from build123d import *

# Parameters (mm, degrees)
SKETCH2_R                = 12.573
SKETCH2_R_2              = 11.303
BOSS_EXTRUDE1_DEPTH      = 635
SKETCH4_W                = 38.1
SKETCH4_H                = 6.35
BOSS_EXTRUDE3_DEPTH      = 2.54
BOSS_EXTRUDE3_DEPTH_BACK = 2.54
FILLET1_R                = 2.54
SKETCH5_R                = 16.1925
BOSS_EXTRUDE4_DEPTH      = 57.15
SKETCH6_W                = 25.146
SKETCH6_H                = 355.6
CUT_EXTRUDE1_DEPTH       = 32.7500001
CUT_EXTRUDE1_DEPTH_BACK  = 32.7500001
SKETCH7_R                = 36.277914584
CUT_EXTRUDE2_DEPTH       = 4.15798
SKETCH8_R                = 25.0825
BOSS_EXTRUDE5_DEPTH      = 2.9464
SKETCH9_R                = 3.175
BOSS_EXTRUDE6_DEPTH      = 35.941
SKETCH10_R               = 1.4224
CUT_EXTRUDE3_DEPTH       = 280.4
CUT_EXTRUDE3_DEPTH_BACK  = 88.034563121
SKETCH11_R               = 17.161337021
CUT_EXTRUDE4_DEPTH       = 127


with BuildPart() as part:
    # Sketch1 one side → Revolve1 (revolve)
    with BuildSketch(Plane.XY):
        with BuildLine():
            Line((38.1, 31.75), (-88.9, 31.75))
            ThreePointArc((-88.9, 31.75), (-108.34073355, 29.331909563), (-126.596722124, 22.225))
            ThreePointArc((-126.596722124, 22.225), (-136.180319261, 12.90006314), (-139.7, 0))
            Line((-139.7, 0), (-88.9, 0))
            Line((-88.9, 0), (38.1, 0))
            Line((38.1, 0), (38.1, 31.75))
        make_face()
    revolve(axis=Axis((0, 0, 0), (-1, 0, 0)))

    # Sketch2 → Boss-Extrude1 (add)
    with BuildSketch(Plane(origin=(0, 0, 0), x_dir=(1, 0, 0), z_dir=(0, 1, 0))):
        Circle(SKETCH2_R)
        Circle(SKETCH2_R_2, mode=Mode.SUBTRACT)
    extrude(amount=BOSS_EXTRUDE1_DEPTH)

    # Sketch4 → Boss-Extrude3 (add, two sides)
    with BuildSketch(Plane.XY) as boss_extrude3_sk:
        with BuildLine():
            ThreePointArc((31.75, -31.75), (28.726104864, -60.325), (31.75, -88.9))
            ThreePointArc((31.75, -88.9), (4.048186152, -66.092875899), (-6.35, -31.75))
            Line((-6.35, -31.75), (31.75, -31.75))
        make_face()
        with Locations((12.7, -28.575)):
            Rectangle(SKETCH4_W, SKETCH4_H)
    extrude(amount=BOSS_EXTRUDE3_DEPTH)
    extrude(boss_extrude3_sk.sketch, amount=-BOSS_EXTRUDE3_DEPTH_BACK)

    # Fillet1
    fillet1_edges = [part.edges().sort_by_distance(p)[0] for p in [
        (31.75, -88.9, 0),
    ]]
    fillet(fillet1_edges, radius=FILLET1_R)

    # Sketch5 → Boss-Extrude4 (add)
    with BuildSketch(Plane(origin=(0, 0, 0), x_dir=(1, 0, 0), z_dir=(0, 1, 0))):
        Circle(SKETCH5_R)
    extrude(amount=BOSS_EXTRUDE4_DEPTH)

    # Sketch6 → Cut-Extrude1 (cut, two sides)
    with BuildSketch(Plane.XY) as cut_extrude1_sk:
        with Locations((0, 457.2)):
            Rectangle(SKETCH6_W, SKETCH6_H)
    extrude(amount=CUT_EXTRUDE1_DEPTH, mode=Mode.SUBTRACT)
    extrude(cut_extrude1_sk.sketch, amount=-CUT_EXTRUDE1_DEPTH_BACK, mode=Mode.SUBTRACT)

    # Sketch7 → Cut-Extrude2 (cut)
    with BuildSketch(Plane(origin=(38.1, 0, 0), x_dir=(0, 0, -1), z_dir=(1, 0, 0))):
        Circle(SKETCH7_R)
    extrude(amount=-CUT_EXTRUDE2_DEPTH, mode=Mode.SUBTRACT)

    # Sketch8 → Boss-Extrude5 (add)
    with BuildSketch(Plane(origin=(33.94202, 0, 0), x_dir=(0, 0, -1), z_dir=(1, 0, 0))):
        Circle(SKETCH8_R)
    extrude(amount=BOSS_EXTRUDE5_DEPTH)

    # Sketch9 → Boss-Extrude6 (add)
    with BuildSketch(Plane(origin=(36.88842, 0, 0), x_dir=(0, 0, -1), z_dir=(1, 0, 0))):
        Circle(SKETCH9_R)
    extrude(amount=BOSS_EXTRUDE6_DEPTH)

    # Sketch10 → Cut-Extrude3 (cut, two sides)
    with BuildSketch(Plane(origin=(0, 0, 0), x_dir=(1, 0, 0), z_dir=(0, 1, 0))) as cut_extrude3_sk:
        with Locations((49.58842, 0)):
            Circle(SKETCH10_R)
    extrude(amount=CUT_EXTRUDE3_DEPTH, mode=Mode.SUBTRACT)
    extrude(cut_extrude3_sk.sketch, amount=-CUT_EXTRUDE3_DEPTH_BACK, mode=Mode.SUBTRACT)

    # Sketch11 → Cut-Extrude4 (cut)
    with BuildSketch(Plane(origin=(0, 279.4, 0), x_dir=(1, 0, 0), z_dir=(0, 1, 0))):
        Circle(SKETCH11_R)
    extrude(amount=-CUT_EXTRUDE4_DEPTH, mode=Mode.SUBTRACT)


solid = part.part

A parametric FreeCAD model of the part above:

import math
import FreeCAD as App
import Part
import Sketcher
Q = App.Units.Quantity


def edges_at(feature, points):
    """Names of the edges that pass closest to the given points."""
    edges = feature.Shape.Edges
    near = lambda p: min(range(len(edges)), key=lambda i: edges[i].distToShape(Part.Vertex(*p))[0])
    return sorted({f"Edge{near(p) + 1}" for p in points})

doc = App.newDocument("Part")
body = doc.addObject("PartDesign::Body", "Body")

# Sketch on XY plane
sketch1 = doc.addObject("Sketcher::SketchObject", "Sketch")
body.addObject(sketch1)
sketch1.AttachmentSupport = (doc.XY_Plane, [""])
sketch1.MapMode = "FlatFace"
sketch1.addGeometry([
    Part.LineSegment(App.Vector(38, 32, 0), App.Vector(-89, 32, 0)),  # 0
    Part.ArcOfCircle(Part.Circle(App.Vector(-89, -48, 0), App.Vector(0, 0, 1), 79), math.radians(90), math.radians(118)),  # 1
    Part.ArcOfCircle(Part.Circle(App.Vector(-114, 0, 0), App.Vector(0, 0, 1), 25), math.radians(119), math.radians(180)),  # 2
    Part.LineSegment(App.Vector(-140, 0, 0), App.Vector(38, 0, 0)),  # 3
    Part.LineSegment(App.Vector(38, 0, 0), App.Vector(38, 32, 0)),  # 4
], False)
sketch1.addConstraint([
    Sketcher.Constraint("Tangent", 0, 2, 1, 1),
    Sketcher.Constraint("Coincident", 1, 2, 2, 1),
    Sketcher.Constraint("Coincident", 2, 2, 3, 1),
    Sketcher.Constraint("Coincident", 3, 2, 4, 1),
    Sketcher.Constraint("Coincident", 4, 2, 0, 1),
    Sketcher.Constraint("Horizontal", 0),
    Sketcher.Constraint("Horizontal", 3),
    Sketcher.Constraint("Vertical", 4),
    Sketcher.Constraint("PointOnObject", 2, 3, -1),
    Sketcher.Constraint("PointOnObject", 2, 2, -1),
    Sketcher.Constraint("Radius", 2, Q("1 in")),
    Sketcher.Constraint("DistanceX", 0, 2, 0, 1, Q("5 in")),
    Sketcher.Constraint("DistanceX", 3, 1, 3, 2, Q("7 in")),
    Sketcher.Constraint("DistanceY", 4, 1, 4, 2, Q("1.25 in")),
    Sketcher.Constraint("DistanceX", 1, 3, -1, 1, Q("3.5 in")),
    Sketcher.Constraint("DistanceY", -1, 1, 1, 2, Q("0.875 in")),
])
revolution = doc.addObject("PartDesign::Revolution", "Revolution")
body.addObject(revolution)
revolution.Profile = sketch1
revolution.ReferenceAxis = (sketch1, ["H_Axis"])
revolution.Angle = 360

# Sketch on XZ plane
sketch2 = doc.addObject("Sketcher::SketchObject", "Sketch001")
body.addObject(sketch2)
sketch2.AttachmentSupport = (doc.XZ_Plane, [""])
sketch2.MapMode = "FlatFace"
sketch2.addGeometry([
    Part.Circle(App.Vector(0, 0, 0), App.Vector(0, 0, 1), 13),
    Part.Circle(App.Vector(0, 0, 0), App.Vector(0, 0, 1), 11),
], False)
sketch2.addConstraint([
    Sketcher.Constraint("Coincident", 0, 3, -1, 1),
    Sketcher.Constraint("Coincident", 1, 3, -1, 1),
    Sketcher.Constraint("Diameter", 0, Q("0.99 in")),
    Sketcher.Constraint("Diameter", 1, Q("0.89 in")),
])
pad1 = doc.addObject("PartDesign::Pad", "Pad")
body.addObject(pad1)
pad1.Profile = sketch2
pad1.Length = Q("25 in")
pad1.Reversed = True

# Sketch on XY plane
sketch3 = doc.addObject("Sketcher::SketchObject", "Sketch002")
body.addObject(sketch3)
sketch3.AttachmentSupport = (doc.XY_Plane, [""])
sketch3.MapMode = "FlatFace"
sketch3.addGeometry([
    Part.ArcOfCircle(Part.Circle(App.Vector(165, -60, 0), App.Vector(0, 0, 1), 137), math.radians(168), math.radians(192)),  # 0
    Part.LineSegment(App.Vector(32, -32, 0), App.Vector(32, -25, 0)),  # 1
    Part.LineSegment(App.Vector(32, -25, 0), App.Vector(-6, -25, 0)),  # 2
    Part.LineSegment(App.Vector(-6, -25, 0), App.Vector(-6, -32, 0)),  # 3
    Part.ArcOfCircle(Part.Circle(App.Vector(56, -32, 0), App.Vector(0, 0, 1), 62), math.radians(180), math.radians(247)),  # 4
], False)
sketch3.addConstraint([
    Sketcher.Constraint("Coincident", 0, 1, 1, 1),
    Sketcher.Constraint("Coincident", 1, 2, 2, 1),
    Sketcher.Constraint("Coincident", 2, 2, 3, 1),
    Sketcher.Constraint("Tangent", 3, 2, 4, 1),
    Sketcher.Constraint("Coincident", 4, 2, 0, 2),
    Sketcher.Constraint("Vertical", 1),
    Sketcher.Constraint("Horizontal", 2),
    Sketcher.Constraint("Vertical", 3),
    Sketcher.Constraint("Horizontal", 4, 3, 0, 1),
    Sketcher.Constraint("Vertical", 1, 2, 4, 2),
    Sketcher.Constraint("DistanceX", 2, 2, 2, 1, Q("1.5 in")),
    Sketcher.Constraint("DistanceY", 1, 2, -1, 1, Q("1 in")),
    Sketcher.Constraint("Radius", 0, Q("5.375 in")),
    Sketcher.Constraint("Radius", 4, Q("2.4375 in")),
    Sketcher.Constraint("DistanceY", 1, 1, 1, 2, Q("0.25 in")),
    Sketcher.Constraint("DistanceX", -1, 1, 0, 1, Q("1.25 in")),
])
pad2 = doc.addObject("PartDesign::Pad", "Pad001")
body.addObject(pad2)
pad2.Profile = sketch3
pad2.Type = "TwoLengths"
pad2.Length = Q("0.1 in")
pad2.Length2 = Q("0.1 in")
doc.recompute()

fillet = doc.addObject("PartDesign::Fillet", "Fillet")
body.addObject(fillet)
fillet.Base = (pad2, edges_at(pad2, [(31.75, -88.9, 0)]))
fillet.Radius = Q("0.1 in")

# Sketch on XZ plane
sketch4 = doc.addObject("Sketcher::SketchObject", "Sketch003")
body.addObject(sketch4)
sketch4.AttachmentSupport = (doc.XZ_Plane, [""])
sketch4.MapMode = "FlatFace"
sketch4.addGeometry(Part.Circle(App.Vector(0, 0, 0), App.Vector(0, 0, 1), 16), False)
sketch4.addConstraint([
    Sketcher.Constraint("Coincident", 0, 3, -1, 1),
    Sketcher.Constraint("Diameter", 0, Q("1.275 in")),
])
pad3 = doc.addObject("PartDesign::Pad", "Pad002")
body.addObject(pad3)
pad3.Profile = sketch4
pad3.Length = Q("2.25 in")
pad3.Reversed = True

# Sketch on XY plane
sketch5 = doc.addObject("Sketcher::SketchObject", "Sketch004")
body.addObject(sketch5)
sketch5.AttachmentSupport = (doc.XY_Plane, [""])
sketch5.MapMode = "FlatFace"
sketch5.addGeometry([
    Part.LineSegment(App.Vector(-13, 635, 0), App.Vector(-13, 279, 0)),
    Part.LineSegment(App.Vector(-13, 279, 0), App.Vector(13, 279, 0)),
    Part.LineSegment(App.Vector(13, 279, 0), App.Vector(13, 635, 0)),
    Part.LineSegment(App.Vector(13, 635, 0), App.Vector(-13, 635, 0)),
], False)
sketch5.addConstraint([
    Sketcher.Constraint("Coincident", 0, 2, 1, 1),
    Sketcher.Constraint("Coincident", 1, 2, 2, 1),
    Sketcher.Constraint("Coincident", 2, 2, 3, 1),
    Sketcher.Constraint("Coincident", 3, 2, 0, 1),
    Sketcher.Constraint("Vertical", 0),
    Sketcher.Constraint("Horizontal", 1),
    Sketcher.Constraint("Vertical", 2),
    Sketcher.Constraint("Horizontal", 3),
    Sketcher.Constraint("DistanceY", 0, 2, 0, 1, Q("14 in")),
    Sketcher.Constraint("DistanceY", -1, 1, 0, 2, Q("11 in")),
    Sketcher.Constraint("DistanceX", 1, 1, 1, 2, Q("0.99 in")),
    Sketcher.Constraint("DistanceX", 0, 2, -1, 1, Q("0.495 in")),
])
pocket1 = doc.addObject("PartDesign::Pocket", "Pocket")
body.addObject(pocket1)
pocket1.Profile = sketch5
pocket1.Type = "ThroughAll"
pocket1.Midplane = True

# Sketch on YZ plane
sketch6 = doc.addObject("Sketcher::SketchObject", "Sketch005")
body.addObject(sketch6)
sketch6.AttachmentSupport = (doc.YZ_Plane, [""])
sketch6.MapMode = "FlatFace"
sketch6.AttachmentOffset = App.Placement(App.Vector(0, 0, 1.5 * 25.4), App.Rotation())
sketch6.addGeometry(Part.Circle(App.Vector(0, 0, 0), App.Vector(0, 0, 1), 36), False)
sketch6.addConstraint([
    Sketcher.Constraint("Coincident", 0, 3, -1, 1),
    Sketcher.Constraint("Diameter", 0, 72.555829),
])
pocket2 = doc.addObject("PartDesign::Pocket", "Pocket001")
body.addObject(pocket2)
pocket2.Profile = sketch6
pocket2.Length = Q("0.1637 in")

# Sketch on YZ plane
sketch7 = doc.addObject("Sketcher::SketchObject", "Sketch006")
body.addObject(sketch7)
sketch7.AttachmentSupport = (doc.YZ_Plane, [""])
sketch7.MapMode = "FlatFace"
sketch7.AttachmentOffset = App.Placement(App.Vector(0, 0, 1.3363 * 25.4), App.Rotation())
sketch7.addGeometry(Part.Circle(App.Vector(0, 0, 0), App.Vector(0, 0, 1), 25), False)
sketch7.addConstraint([
    Sketcher.Constraint("Coincident", 0, 3, -1, 1),
    Sketcher.Constraint("Diameter", 0, Q("1.975 in")),
])
pad4 = doc.addObject("PartDesign::Pad", "Pad003")
body.addObject(pad4)
pad4.Profile = sketch7
pad4.Length = Q("0.116 in")

# Sketch on YZ plane
sketch8 = doc.addObject("Sketcher::SketchObject", "Sketch007")
body.addObject(sketch8)
sketch8.AttachmentSupport = (doc.YZ_Plane, [""])
sketch8.MapMode = "FlatFace"
sketch8.AttachmentOffset = App.Placement(App.Vector(0, 0, 1.4523 * 25.4), App.Rotation())
sketch8.addGeometry(Part.Circle(App.Vector(0, 0, 0), App.Vector(0, 0, 1), 3.2), False)
sketch8.addConstraint([
    Sketcher.Constraint("Coincident", 0, 3, -1, 1),
    Sketcher.Constraint("Diameter", 0, Q("0.25 in")),
])
pad5 = doc.addObject("PartDesign::Pad", "Pad004")
body.addObject(pad5)
pad5.Profile = sketch8
pad5.Length = Q("1.415 in")

# Sketch on XZ plane
sketch9 = doc.addObject("Sketcher::SketchObject", "Sketch008")
body.addObject(sketch9)
sketch9.AttachmentSupport = (doc.XZ_Plane, [""])
sketch9.MapMode = "FlatFace"
sketch9.addGeometry(Part.Circle(App.Vector(49.6, 0, 0), App.Vector(0, 0, 1), 1.4), False)
sketch9.addConstraint([
    Sketcher.Constraint("PointOnObject", 0, 3, -1),
    Sketcher.Constraint("Diameter", 0, Q("0.112 in")),
    Sketcher.Constraint("DistanceX", -1, 1, 0, 3, Q("1.9523 in")),
])
pocket3 = doc.addObject("PartDesign::Pocket", "Pocket002")
body.addObject(pocket3)
pocket3.Profile = sketch9
pocket3.Type = "ThroughAll"
pocket3.Midplane = True

# Sketch on XZ plane
sketch10 = doc.addObject("Sketcher::SketchObject", "Sketch009")
body.addObject(sketch10)
sketch10.AttachmentSupport = (doc.XZ_Plane, [""])
sketch10.MapMode = "FlatFace"
sketch10.AttachmentOffset = App.Placement(App.Vector(0, 0, -11 * 25.4), App.Rotation())
sketch10.addGeometry(Part.Circle(App.Vector(0, 0, 0), App.Vector(0, 0, 1), 17), False)
sketch10.addConstraint([
    Sketcher.Constraint("Coincident", 0, 3, -1, 1),
    Sketcher.Constraint("Diameter", 0, 34.322674),
])
pocket4 = doc.addObject("PartDesign::Pocket", "Pocket003")
body.addObject(pocket4)
pocket4.Profile = sketch10
pocket4.Length = Q("5 in")
pocket4.Reversed = True

doc.recompute()
